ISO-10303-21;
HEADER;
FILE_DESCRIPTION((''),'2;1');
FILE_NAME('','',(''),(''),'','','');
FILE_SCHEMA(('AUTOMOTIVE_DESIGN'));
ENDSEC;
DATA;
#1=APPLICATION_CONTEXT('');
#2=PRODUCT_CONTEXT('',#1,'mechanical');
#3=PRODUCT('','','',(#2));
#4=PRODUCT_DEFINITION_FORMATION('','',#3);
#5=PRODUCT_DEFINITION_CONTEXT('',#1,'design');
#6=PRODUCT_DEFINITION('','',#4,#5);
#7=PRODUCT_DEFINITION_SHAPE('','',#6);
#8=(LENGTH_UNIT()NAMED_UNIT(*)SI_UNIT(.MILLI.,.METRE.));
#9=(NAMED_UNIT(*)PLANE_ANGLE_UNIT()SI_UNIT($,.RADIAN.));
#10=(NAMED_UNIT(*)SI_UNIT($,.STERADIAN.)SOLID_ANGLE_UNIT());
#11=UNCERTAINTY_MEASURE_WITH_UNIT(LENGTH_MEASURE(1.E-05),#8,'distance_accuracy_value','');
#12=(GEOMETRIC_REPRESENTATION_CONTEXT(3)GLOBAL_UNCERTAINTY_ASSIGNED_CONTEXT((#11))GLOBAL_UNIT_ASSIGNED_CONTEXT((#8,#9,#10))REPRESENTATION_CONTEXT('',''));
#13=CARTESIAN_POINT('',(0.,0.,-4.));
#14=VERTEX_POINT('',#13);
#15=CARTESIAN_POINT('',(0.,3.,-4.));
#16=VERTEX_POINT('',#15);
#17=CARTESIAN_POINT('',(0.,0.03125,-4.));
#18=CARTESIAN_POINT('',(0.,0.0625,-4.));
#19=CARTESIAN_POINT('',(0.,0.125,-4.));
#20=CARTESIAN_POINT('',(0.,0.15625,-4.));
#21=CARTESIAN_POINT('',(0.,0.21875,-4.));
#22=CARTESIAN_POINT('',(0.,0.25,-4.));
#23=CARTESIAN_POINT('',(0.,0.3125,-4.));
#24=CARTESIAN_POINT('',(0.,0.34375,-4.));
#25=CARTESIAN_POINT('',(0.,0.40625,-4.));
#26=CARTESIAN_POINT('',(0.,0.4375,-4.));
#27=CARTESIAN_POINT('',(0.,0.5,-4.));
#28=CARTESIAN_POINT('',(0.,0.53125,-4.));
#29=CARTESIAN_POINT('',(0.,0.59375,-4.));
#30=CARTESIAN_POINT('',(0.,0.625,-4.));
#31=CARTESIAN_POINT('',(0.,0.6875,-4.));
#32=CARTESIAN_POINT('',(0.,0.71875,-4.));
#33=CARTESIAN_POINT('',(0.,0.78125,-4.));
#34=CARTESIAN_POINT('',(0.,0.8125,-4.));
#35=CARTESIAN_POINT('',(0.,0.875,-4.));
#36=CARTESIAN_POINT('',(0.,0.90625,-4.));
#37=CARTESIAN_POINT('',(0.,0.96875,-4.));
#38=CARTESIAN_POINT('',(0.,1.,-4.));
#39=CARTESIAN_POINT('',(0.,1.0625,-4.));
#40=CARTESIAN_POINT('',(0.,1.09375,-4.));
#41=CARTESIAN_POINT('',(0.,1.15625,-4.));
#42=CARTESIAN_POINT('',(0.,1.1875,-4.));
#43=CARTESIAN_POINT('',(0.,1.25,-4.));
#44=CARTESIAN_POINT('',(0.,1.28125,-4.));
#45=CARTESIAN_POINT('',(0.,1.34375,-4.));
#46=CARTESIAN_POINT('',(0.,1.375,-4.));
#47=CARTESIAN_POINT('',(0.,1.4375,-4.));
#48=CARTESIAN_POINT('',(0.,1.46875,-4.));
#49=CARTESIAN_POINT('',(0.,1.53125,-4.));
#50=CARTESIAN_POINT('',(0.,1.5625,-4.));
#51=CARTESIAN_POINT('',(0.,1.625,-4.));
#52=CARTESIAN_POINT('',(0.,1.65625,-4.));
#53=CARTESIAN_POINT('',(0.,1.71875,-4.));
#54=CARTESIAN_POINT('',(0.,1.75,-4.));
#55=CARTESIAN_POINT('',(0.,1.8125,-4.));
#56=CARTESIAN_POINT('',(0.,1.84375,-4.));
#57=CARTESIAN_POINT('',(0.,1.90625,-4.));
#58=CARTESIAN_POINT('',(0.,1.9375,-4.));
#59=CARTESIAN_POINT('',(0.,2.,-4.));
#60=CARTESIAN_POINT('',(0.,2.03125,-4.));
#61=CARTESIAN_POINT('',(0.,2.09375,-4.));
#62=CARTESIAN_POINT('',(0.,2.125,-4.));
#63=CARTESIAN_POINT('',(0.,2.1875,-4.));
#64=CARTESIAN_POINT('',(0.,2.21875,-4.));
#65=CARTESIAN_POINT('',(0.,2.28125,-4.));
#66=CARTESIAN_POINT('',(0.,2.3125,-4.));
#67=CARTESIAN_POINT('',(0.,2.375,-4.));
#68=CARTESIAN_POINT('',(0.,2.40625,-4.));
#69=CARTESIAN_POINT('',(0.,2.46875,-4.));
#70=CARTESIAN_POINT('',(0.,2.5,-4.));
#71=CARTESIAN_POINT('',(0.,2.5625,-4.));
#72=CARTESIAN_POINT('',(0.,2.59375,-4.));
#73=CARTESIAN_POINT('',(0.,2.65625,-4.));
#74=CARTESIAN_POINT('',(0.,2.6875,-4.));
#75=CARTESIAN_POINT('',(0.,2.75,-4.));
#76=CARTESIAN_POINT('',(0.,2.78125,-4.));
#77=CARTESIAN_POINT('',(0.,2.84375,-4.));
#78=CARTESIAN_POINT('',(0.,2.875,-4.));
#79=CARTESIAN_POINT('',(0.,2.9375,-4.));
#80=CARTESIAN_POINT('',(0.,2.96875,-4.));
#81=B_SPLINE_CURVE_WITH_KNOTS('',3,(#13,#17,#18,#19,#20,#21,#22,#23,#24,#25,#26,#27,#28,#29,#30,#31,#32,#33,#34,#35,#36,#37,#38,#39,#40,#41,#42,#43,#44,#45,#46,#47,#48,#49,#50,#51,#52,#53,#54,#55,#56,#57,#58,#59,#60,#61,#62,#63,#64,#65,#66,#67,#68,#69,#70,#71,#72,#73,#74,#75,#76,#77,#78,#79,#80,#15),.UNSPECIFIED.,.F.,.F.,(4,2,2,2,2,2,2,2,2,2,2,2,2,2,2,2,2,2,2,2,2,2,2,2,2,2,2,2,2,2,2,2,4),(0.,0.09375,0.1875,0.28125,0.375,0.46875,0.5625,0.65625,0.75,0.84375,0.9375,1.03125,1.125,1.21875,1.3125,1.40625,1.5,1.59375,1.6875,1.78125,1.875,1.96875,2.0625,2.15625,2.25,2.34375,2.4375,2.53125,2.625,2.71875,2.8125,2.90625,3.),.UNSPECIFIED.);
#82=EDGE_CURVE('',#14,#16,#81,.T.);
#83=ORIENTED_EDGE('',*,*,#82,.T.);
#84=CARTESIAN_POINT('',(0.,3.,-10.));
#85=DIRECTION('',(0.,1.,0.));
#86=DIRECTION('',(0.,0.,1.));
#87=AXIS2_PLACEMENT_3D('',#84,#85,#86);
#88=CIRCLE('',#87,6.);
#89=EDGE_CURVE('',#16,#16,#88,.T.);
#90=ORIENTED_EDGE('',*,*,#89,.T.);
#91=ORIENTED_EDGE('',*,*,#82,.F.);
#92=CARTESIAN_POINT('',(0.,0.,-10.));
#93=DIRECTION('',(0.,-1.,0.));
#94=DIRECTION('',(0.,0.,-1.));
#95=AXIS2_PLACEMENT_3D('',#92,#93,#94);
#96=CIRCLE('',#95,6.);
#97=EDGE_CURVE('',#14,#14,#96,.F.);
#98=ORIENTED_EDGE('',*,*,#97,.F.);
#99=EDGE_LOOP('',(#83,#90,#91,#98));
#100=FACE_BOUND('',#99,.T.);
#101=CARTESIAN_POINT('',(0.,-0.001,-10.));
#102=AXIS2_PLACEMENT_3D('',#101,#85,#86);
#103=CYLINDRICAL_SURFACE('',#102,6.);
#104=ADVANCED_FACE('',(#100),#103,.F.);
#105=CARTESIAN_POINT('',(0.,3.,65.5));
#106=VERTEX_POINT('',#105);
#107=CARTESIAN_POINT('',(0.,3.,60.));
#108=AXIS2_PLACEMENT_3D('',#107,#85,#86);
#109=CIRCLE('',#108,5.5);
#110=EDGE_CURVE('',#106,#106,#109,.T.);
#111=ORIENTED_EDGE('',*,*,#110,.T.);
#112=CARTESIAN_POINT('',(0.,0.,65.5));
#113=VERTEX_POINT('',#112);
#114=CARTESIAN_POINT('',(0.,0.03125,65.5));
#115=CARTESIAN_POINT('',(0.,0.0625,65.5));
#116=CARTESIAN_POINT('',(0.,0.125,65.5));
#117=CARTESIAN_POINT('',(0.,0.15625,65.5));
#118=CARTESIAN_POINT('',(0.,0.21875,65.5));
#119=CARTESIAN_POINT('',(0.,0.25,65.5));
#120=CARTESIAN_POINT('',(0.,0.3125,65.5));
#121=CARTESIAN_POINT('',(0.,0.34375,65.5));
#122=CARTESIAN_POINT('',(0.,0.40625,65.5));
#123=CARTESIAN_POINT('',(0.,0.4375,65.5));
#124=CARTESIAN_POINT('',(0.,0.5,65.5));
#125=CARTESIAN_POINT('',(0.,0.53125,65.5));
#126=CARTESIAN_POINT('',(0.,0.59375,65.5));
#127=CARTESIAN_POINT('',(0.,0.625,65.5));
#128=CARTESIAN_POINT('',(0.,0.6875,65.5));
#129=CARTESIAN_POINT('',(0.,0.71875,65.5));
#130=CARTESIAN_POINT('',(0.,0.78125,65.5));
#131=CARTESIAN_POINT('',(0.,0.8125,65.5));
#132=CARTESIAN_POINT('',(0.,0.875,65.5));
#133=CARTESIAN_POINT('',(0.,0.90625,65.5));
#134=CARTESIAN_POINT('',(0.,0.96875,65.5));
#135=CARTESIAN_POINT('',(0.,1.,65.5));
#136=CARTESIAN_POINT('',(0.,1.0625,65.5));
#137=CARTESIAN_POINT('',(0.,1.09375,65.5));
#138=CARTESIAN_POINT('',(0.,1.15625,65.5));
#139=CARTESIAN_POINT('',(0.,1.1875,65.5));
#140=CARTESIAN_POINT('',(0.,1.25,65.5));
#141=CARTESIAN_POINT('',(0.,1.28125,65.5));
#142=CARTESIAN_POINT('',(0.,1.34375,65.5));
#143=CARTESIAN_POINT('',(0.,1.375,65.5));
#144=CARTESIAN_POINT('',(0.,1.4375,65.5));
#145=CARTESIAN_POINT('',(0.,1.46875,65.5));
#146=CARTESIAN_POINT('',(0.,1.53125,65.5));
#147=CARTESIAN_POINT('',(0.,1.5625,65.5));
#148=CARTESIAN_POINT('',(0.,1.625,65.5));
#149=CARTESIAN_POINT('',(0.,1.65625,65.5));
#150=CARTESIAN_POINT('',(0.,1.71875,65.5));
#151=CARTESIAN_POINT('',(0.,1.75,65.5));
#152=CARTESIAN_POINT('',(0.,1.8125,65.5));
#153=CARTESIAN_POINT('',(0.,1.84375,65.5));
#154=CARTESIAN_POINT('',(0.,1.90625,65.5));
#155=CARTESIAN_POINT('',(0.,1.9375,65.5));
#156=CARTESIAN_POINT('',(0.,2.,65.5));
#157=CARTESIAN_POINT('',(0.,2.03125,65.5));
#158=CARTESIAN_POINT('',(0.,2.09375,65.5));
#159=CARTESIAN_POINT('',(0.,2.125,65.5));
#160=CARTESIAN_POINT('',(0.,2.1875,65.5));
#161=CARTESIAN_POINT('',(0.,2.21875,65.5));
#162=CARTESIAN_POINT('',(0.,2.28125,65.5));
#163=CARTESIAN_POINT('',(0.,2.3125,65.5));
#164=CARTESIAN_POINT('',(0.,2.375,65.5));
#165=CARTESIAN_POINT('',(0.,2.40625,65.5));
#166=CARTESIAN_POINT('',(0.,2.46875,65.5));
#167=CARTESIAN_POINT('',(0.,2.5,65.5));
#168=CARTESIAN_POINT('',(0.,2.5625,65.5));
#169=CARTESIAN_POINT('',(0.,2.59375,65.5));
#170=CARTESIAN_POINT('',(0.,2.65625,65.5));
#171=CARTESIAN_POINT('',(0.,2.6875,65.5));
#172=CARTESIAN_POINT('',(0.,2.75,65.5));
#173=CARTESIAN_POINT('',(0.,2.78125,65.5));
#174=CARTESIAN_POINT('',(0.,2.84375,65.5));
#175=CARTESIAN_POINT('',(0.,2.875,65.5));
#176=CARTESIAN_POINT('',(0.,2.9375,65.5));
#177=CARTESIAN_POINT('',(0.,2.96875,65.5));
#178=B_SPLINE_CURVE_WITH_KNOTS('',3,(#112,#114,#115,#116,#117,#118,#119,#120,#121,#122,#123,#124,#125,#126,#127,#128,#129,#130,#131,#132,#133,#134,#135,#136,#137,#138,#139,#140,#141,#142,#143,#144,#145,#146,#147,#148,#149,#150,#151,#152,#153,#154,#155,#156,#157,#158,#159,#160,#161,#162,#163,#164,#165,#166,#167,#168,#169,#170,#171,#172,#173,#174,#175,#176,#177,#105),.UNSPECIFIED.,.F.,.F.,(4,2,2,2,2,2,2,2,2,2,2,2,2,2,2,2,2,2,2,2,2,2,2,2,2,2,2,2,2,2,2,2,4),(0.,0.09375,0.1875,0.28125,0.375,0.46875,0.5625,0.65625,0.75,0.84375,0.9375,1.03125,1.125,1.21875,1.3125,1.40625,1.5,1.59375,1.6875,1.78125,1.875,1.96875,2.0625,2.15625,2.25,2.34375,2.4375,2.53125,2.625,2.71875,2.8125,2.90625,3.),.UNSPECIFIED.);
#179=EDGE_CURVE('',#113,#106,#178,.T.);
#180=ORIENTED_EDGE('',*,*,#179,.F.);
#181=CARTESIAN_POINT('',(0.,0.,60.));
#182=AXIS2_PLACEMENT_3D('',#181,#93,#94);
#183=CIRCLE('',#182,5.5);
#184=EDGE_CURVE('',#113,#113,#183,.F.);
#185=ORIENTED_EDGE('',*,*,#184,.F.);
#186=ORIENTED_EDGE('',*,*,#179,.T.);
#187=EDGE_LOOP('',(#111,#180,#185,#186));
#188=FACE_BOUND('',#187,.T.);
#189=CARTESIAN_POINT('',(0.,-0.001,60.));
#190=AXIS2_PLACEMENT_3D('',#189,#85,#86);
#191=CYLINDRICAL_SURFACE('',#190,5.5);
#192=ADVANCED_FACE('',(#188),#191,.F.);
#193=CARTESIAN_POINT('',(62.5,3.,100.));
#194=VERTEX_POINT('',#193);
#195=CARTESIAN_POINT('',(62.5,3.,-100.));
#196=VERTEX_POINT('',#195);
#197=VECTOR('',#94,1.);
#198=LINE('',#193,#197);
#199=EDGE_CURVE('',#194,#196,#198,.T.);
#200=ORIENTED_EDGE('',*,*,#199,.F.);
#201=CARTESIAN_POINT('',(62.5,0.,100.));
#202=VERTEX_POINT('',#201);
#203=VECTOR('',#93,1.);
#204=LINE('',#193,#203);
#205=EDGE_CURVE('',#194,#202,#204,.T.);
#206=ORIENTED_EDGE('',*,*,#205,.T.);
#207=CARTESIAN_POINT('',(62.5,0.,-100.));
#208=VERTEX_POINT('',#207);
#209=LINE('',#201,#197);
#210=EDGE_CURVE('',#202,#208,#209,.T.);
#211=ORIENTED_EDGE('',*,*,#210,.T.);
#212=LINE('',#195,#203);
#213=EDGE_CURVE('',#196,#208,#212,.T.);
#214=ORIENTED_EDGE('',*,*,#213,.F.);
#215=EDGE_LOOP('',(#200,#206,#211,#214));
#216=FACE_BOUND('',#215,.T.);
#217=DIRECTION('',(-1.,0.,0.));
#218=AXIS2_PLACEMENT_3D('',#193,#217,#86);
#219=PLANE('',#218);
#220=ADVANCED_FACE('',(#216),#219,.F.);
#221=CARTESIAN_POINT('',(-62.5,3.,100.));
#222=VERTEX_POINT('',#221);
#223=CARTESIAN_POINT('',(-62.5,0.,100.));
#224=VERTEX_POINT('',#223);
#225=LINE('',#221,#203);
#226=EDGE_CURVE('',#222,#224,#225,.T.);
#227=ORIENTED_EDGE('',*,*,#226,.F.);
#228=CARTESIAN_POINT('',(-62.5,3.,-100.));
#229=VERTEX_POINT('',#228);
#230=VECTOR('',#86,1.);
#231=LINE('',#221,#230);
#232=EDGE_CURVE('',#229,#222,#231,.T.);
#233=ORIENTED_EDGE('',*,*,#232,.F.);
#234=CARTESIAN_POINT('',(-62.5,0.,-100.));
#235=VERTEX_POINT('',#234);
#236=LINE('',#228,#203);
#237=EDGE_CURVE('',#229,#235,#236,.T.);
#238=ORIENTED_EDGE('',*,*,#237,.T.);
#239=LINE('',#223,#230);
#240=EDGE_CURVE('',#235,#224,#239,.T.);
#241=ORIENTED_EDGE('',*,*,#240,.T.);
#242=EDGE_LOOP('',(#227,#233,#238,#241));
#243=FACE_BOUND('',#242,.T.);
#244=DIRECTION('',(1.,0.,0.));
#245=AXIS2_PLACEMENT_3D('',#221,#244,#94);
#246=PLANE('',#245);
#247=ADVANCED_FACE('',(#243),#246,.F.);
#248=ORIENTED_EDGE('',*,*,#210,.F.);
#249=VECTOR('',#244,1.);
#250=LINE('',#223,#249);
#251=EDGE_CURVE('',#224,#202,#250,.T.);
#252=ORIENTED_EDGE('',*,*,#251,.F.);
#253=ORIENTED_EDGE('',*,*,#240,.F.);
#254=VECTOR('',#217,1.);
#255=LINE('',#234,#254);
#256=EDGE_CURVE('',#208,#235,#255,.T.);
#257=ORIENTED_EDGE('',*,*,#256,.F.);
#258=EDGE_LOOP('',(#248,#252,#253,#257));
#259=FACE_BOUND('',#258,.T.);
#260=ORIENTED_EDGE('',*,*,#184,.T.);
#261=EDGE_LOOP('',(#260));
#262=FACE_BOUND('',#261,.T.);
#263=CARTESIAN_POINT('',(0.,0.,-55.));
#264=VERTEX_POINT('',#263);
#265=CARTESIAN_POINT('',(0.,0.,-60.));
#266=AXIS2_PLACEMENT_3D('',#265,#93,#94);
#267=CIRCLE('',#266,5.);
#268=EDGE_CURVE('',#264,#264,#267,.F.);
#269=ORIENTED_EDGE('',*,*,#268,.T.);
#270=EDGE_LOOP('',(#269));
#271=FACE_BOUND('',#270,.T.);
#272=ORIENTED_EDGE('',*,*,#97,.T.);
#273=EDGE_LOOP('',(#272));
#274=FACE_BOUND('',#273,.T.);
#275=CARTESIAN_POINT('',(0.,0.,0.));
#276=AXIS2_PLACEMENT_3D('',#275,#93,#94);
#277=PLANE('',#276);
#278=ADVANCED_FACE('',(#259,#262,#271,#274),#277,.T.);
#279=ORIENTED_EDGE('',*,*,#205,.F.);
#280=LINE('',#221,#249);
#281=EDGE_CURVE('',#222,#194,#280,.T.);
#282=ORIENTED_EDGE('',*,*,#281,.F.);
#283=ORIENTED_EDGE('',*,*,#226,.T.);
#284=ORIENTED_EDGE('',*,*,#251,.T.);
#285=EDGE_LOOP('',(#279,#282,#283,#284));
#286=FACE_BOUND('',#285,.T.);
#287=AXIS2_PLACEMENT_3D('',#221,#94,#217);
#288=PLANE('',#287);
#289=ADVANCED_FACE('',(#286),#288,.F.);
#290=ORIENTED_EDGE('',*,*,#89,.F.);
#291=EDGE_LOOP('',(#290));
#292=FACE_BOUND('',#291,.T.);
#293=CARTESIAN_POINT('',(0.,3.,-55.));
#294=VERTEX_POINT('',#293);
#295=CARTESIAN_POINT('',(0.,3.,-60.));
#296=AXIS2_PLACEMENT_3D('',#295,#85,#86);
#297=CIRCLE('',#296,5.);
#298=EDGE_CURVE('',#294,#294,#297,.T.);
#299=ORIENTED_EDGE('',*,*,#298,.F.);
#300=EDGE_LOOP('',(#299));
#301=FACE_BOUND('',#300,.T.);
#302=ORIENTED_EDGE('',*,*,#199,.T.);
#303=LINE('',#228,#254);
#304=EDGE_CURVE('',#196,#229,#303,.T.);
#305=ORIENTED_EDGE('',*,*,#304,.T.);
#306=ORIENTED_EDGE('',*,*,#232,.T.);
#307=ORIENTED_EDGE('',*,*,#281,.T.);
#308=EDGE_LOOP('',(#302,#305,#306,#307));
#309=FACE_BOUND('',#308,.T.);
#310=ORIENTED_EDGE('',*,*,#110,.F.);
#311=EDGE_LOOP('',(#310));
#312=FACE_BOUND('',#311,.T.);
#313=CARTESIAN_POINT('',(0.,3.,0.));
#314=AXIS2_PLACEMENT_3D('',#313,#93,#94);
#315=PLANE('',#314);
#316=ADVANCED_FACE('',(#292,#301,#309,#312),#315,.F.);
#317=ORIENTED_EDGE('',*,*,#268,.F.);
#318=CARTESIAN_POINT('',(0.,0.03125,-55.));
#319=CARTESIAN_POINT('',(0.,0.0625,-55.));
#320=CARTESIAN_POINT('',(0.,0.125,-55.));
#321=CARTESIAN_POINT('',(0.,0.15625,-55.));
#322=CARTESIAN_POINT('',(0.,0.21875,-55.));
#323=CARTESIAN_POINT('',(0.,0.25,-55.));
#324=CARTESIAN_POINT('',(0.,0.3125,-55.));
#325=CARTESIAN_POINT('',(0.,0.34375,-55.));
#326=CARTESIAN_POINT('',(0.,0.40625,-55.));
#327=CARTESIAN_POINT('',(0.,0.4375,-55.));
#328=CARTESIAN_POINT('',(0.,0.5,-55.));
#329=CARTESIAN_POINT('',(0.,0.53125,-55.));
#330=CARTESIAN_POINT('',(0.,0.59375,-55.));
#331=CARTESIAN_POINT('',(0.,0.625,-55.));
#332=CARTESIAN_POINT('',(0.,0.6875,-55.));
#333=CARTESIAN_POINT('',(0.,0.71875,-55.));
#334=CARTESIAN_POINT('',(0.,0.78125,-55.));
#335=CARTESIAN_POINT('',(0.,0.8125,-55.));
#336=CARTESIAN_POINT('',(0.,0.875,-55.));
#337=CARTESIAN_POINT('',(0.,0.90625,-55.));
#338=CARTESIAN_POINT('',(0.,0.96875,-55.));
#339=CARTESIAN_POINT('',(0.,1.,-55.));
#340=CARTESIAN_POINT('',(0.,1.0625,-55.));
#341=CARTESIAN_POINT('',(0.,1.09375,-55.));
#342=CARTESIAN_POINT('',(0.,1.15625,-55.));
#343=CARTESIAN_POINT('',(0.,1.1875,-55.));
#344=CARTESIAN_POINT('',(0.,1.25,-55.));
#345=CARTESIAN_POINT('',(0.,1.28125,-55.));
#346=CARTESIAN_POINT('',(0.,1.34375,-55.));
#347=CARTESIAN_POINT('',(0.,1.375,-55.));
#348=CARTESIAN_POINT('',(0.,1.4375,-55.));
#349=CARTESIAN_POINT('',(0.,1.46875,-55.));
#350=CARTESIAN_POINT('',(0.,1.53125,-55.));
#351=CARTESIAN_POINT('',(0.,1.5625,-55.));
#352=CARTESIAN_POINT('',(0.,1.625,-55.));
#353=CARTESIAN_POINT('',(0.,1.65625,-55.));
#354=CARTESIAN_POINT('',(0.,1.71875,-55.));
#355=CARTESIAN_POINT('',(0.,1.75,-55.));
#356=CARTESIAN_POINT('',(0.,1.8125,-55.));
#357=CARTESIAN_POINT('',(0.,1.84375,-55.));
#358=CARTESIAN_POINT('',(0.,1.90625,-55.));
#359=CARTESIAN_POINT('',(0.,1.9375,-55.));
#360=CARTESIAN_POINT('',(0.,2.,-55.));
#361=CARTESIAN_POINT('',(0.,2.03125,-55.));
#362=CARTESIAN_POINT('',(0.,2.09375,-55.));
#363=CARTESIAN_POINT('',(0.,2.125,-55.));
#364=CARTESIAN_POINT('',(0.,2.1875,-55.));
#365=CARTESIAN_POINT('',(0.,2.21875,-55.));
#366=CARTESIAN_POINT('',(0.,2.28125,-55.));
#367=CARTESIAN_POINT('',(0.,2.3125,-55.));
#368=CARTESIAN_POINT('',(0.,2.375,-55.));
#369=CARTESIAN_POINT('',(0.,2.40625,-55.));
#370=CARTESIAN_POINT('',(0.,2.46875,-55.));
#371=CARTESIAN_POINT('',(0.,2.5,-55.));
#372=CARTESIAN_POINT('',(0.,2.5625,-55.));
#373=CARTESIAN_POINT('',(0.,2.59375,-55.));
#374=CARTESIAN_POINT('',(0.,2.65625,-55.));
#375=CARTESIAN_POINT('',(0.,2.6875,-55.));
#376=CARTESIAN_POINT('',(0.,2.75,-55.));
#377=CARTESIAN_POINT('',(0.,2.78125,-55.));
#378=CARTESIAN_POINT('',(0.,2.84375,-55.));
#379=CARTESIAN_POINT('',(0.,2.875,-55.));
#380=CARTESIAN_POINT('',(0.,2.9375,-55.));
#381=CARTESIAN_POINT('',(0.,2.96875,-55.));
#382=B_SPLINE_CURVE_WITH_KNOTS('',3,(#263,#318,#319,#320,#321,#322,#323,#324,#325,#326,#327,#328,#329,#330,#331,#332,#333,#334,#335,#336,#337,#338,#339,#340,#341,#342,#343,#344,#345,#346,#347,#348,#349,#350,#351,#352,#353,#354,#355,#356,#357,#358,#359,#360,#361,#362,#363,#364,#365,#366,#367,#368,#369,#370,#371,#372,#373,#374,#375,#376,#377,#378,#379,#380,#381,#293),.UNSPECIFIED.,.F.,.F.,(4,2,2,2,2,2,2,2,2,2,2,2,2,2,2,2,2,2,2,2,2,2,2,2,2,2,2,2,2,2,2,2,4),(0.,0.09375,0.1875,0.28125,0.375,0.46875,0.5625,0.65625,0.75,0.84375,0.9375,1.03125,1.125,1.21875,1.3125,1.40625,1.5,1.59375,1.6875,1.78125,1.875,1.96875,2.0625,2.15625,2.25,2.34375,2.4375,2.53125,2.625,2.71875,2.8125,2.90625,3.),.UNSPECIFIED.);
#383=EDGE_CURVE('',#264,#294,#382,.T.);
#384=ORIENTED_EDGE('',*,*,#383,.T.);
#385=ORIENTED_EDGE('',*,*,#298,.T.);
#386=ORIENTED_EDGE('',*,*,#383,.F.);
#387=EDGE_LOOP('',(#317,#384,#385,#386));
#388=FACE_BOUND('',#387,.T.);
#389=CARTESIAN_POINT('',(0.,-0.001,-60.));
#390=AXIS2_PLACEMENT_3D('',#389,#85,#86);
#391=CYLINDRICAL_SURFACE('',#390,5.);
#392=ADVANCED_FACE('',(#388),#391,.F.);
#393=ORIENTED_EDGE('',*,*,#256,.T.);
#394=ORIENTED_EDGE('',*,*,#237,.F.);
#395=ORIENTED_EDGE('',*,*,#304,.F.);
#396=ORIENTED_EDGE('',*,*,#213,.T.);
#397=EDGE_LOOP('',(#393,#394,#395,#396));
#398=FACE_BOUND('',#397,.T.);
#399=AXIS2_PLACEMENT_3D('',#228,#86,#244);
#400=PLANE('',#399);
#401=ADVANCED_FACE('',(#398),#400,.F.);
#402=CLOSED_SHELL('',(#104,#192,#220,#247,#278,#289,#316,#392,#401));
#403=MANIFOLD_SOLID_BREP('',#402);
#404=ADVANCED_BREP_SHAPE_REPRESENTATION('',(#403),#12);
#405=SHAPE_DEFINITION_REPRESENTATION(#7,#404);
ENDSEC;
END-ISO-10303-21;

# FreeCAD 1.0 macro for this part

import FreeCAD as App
import Part
import Sketcher

V = App.Vector
Q = App.Units.Quantity

doc = App.newDocument("Part")
body = doc.addObject("PartDesign::Body", "Body")

# Sketch on XZ plane
sketch1 = doc.addObject("Sketcher::SketchObject", "Sketch")
body.addObject(sketch1)
sketch1.AttachmentSupport = (doc.XZ_Plane, [""])
sketch1.MapMode = "FlatFace"
sketch1.addGeometry([
    Part.LineSegment(V(-62, -100, 0), V(-62, 100, 0)),
    Part.LineSegment(V(-62, 100, 0), V(62, 100, 0)),
    Part.LineSegment(V(62, 100, 0), V(62, -100, 0)),
    Part.LineSegment(V(62, -100, 0), V(-62, -100, 0)),
], False)
sketch1.addConstraint([
    Sketcher.Constraint("Coincident", 0, 2, 1, 1),
    Sketcher.Constraint("Coincident", 1, 2, 2, 1),
    Sketcher.Constraint("Coincident", 2, 2, 3, 1),
    Sketcher.Constraint("Coincident", 3, 2, 0, 1),
    Sketcher.Constraint("Vertical", 0),
    Sketcher.Constraint("Horizontal", 1),
    Sketcher.Constraint("Vertical", 2),
    Sketcher.Constraint("Horizontal", 3),
    Sketcher.Constraint("Symmetric", 0, 2, 2, 2, -1, 1),
    Sketcher.Constraint("DistanceX", 1, 1, 1, 2, Q("125 mm")),
    Sketcher.Constraint("DistanceY", 0, 1, 0, 2, Q("200 mm")),
])
pad1 = doc.addObject("PartDesign::Pad", "Pad")
body.addObject(pad1)
pad1.Profile = sketch1
pad1.Length = 3
pad1.Reversed = True

# Sketch on XZ plane
sketch2 = doc.addObject("Sketcher::SketchObject", "Sketch001")
body.addObject(sketch2)
sketch2.AttachmentSupport = (doc.XZ_Plane, [""])
sketch2.MapMode = "FlatFace"
sketch2.AttachmentOffset = App.Placement(V(0, 0, -3), App.Rotation())
sketch2.addGeometry([
    Part.Circle(V(0, -60, 0), V(0, 0, 1), 5),
    Part.Circle(V(0, 60, 0), V(0, 0, 1), 6),
    Part.Circle(V(0, -10, 0), V(0, 0, 1), 6),
], False)
sketch2.addConstraint([
    Sketcher.Constraint("Symmetric", 0, 3, 1, 3, -1, 1),
    Sketcher.Constraint("PointOnObject", 0, 3, -2),
    Sketcher.Constraint("PointOnObject", 2, 3, -2),
    Sketcher.Constraint("Diameter", 0, Q("10 mm")),
    Sketcher.Constraint("Diameter", 1, Q("11 mm")),
    Sketcher.Constraint("Diameter", 2, Q("12 mm")),
    Sketcher.Constraint("DistanceY", 0, 3, -1, 1, Q("60 mm")),
    Sketcher.Constraint("DistanceY", 2, 3, -1, 1, Q("10 mm")),
])
pocket1 = doc.addObject("PartDesign::Pocket", "Pocket")
body.addObject(pocket1)
pocket1.Profile = sketch2
pocket1.Length = 3
pocket1.Reversed = True

doc.recompute()
